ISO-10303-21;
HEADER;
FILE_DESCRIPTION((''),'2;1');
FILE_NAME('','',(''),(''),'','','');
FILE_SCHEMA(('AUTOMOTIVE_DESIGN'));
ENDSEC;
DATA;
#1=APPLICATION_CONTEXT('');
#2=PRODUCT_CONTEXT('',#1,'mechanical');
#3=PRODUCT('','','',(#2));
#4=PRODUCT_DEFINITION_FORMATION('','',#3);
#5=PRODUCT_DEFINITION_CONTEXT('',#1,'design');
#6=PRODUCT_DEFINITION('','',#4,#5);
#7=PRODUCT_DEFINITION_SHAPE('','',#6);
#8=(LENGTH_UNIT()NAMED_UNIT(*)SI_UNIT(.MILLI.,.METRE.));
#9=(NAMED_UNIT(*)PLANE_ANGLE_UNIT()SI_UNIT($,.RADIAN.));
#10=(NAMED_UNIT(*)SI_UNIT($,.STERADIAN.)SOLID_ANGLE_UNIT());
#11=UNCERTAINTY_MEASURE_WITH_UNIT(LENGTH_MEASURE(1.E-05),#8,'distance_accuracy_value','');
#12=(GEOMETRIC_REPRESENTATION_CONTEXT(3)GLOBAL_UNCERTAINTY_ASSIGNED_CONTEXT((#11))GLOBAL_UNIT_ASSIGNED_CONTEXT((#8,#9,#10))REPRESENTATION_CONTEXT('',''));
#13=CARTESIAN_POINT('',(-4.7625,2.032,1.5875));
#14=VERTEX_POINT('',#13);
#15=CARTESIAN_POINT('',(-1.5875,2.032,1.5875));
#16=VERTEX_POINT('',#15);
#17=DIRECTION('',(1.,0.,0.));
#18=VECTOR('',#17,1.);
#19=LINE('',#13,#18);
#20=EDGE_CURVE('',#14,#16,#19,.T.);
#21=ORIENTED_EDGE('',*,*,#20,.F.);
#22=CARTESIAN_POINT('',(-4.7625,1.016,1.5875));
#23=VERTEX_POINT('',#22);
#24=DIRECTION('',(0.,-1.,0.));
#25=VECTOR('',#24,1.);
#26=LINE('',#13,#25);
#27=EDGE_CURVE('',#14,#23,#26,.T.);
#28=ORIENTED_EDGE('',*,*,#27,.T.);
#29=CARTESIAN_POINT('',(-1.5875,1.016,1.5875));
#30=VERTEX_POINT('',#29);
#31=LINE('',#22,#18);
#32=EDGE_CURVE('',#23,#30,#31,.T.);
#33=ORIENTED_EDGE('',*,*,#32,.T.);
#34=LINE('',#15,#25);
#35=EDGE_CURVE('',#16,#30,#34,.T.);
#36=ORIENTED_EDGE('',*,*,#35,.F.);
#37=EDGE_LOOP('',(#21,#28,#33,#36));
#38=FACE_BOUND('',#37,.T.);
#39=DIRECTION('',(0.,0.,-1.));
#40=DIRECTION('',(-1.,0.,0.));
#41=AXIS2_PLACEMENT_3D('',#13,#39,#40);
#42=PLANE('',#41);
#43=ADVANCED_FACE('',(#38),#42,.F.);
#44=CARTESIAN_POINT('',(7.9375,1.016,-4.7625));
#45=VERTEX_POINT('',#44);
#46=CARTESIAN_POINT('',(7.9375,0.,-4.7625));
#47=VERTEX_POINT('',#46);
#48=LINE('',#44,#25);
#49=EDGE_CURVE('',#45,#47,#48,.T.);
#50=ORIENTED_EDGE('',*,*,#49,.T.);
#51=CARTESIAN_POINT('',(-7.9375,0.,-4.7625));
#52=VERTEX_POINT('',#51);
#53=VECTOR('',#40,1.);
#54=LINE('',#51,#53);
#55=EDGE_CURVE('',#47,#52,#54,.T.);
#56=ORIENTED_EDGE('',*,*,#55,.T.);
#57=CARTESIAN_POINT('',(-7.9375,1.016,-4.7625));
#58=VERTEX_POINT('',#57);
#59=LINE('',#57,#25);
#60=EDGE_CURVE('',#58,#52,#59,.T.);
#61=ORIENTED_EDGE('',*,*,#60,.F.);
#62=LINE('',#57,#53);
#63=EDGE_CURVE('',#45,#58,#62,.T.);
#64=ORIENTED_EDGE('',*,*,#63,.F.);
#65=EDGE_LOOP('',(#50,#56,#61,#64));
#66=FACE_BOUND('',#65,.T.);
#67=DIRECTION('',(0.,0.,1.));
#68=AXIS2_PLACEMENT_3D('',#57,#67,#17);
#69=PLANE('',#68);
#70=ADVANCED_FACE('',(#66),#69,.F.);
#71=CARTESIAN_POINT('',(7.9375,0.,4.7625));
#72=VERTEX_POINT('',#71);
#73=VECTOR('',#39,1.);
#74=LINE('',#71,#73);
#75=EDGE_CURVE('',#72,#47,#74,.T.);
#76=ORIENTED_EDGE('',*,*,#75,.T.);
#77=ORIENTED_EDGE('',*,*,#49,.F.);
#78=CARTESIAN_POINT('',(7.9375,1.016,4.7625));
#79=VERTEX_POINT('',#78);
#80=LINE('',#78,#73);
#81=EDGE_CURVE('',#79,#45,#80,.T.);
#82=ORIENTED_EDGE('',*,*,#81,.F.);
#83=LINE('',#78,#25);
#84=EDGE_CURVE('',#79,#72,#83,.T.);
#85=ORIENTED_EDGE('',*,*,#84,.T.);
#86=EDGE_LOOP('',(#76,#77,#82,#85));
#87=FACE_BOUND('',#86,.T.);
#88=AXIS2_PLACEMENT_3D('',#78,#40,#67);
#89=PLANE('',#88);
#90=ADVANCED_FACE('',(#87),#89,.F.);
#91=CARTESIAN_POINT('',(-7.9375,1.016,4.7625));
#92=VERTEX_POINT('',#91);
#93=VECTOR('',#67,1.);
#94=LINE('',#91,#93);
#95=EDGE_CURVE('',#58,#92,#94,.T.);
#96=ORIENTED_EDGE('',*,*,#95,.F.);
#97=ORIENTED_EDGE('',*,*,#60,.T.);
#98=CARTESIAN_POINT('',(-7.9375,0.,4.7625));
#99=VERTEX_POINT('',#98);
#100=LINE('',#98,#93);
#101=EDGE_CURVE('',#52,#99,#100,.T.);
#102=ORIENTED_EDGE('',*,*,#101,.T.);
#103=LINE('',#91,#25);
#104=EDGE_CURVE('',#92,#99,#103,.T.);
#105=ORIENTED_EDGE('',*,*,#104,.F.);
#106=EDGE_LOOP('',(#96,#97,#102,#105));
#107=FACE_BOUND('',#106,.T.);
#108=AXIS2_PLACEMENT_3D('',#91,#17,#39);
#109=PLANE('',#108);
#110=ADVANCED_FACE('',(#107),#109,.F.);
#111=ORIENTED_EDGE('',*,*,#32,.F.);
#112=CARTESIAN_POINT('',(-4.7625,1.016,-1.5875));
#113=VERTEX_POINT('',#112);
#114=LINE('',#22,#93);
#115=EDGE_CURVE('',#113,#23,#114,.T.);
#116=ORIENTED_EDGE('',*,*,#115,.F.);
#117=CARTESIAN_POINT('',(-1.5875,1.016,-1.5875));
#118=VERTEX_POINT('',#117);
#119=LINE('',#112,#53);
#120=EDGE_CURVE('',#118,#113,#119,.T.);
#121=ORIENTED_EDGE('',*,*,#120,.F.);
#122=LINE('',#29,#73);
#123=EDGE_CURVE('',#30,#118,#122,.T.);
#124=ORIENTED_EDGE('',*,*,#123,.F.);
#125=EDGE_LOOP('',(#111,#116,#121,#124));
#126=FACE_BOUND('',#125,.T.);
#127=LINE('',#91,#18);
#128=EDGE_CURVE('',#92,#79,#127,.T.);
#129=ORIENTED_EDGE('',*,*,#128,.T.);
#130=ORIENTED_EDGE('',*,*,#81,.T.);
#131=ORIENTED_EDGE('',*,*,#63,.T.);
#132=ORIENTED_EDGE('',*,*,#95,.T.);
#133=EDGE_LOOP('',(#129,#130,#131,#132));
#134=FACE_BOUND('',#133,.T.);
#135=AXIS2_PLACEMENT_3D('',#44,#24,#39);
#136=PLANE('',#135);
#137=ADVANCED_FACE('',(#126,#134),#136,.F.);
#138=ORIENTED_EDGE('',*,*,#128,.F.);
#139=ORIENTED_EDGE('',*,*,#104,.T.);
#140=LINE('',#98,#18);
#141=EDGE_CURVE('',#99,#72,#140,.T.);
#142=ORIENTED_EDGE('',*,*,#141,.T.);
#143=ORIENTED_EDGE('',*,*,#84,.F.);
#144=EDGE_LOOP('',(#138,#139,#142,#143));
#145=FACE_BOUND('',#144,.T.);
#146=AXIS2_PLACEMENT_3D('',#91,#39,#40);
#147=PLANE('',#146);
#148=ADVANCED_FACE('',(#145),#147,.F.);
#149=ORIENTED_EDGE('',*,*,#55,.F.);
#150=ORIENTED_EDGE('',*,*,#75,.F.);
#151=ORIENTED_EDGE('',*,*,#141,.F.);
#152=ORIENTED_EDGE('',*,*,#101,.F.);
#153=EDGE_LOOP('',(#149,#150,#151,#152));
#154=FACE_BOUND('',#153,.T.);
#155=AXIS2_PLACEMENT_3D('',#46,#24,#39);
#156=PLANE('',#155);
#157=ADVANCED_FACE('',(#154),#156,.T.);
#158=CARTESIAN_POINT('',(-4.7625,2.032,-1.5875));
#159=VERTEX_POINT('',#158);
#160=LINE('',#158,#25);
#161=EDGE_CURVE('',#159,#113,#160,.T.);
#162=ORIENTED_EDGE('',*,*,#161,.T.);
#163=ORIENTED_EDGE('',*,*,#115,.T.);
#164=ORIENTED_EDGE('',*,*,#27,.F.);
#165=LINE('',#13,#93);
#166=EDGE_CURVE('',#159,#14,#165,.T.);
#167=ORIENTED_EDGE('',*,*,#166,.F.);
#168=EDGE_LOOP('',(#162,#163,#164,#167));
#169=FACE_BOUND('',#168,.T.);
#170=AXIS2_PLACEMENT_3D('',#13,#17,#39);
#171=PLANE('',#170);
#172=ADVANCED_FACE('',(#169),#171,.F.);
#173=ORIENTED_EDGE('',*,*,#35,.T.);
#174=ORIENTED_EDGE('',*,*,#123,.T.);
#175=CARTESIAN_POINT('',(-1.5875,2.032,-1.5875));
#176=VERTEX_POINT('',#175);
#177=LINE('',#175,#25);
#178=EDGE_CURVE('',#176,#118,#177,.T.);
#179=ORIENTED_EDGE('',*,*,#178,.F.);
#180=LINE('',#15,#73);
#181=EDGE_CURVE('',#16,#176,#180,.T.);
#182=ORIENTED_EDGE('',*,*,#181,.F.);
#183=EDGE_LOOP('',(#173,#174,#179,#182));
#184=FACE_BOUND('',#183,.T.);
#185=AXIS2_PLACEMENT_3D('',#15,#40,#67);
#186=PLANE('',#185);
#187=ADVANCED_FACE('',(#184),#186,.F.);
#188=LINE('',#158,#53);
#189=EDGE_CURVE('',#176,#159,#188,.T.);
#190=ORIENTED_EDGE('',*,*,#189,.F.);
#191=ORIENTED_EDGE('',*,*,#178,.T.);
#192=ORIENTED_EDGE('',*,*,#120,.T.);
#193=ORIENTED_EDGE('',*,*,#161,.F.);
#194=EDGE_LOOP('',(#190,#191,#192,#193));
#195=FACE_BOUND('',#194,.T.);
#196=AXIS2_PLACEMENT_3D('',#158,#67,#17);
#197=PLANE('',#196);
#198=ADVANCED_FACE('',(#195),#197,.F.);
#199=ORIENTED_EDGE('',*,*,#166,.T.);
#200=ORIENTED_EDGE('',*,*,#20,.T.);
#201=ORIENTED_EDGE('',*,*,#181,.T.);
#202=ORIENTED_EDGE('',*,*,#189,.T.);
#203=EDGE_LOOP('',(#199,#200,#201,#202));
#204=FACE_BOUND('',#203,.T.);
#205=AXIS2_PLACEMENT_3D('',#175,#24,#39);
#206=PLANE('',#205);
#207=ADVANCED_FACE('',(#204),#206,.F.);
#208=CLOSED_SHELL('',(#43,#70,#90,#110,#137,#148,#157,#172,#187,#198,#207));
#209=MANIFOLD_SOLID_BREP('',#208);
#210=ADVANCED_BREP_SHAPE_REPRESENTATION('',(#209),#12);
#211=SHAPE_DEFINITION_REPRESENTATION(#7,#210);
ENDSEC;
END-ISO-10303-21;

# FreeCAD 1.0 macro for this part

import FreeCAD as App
import Part
import Sketcher

V = App.Vector
Q = App.Units.Quantity


def add_polygon(sketch, points):
    """Adds a closed chain of lines whose ends are joined by coincident constraints."""
    first, n = sketch.GeometryCount, len(points)
    for a, b in zip(points, points[1:] + points[:1]):
        sketch.addGeometry(Part.LineSegment(App.Vector(*a, 0), App.Vector(*b, 0)), False)
    for i in range(n):
        sketch.addConstraint(Sketcher.Constraint("Coincident", first + i, 2, first + (i + 1) % n, 1))

doc = App.newDocument("Part")
body = doc.addObject("PartDesign::Body", "Body")

sketch1 = body.newObject("Sketcher::SketchObject", "Sketch")
sketch1.AttachmentSupport = (doc.getObject("XZ_Plane"), [""])
sketch1.MapMode = "FlatFace"
add_polygon(sketch1, [(-8, -5), (-8, 5), (8, 5), (8, -5)])
sketch1.addConstraint([
    Sketcher.Constraint("Vertical", 0),
    Sketcher.Constraint("Horizontal", 1),
    Sketcher.Constraint("Vertical", 2),
    Sketcher.Constraint("Horizontal", 3),
    Sketcher.Constraint("Symmetric", 0, 2, 2, 2, -1, 1),
    Sketcher.Constraint("DistanceX", 1, 1, 1, 2, Q("0.625 in")),
    Sketcher.Constraint("DistanceY", 0, 1, 0, 2, Q("0.375 in")),
])
pad1 = body.newObject("PartDesign::Pad", "Pad")
pad1.Profile = sketch1
pad1.Length = Q("0.04 in")
pad1.Reversed = True

sketch2 = body.newObject("Sketcher::SketchObject", "Sketch001")
sketch2.AttachmentSupport = (doc.getObject("XZ_Plane"), [""])
sketch2.MapMode = "FlatFace"
sketch2.AttachmentOffset = App.Placement(V(0, 0, -0.04 * 25.4), App.Rotation())
add_polygon(sketch2, [(-1.6, 1.6), (-1.6, -1.6), (-4.8, -1.6), (-4.8, 1.6)])
sketch2.addConstraint([
    Sketcher.Constraint("Vertical", 0),
    Sketcher.Constraint("Horizontal", 1),
    Sketcher.Constraint("Vertical", 2),
    Sketcher.Constraint("Horizontal", 3),
    Sketcher.Constraint("Equal", 3, 0),
    Sketcher.Constraint("DistanceX", 1, 2, 1, 1, Q("0.125 in")),
    Sketcher.Constraint("DistanceX", 0, 2, -1, 1, Q("0.0625 in")),
    Sketcher.Constraint("DistanceY", 0, 2, -1, 1, Q("0.0625 in")),
])
pad2 = body.newObject("PartDesign::Pad", "Pad001")
pad2.Profile = sketch2
pad2.Length = Q("0.04 in")
pad2.Reversed = True

doc.recompute()
